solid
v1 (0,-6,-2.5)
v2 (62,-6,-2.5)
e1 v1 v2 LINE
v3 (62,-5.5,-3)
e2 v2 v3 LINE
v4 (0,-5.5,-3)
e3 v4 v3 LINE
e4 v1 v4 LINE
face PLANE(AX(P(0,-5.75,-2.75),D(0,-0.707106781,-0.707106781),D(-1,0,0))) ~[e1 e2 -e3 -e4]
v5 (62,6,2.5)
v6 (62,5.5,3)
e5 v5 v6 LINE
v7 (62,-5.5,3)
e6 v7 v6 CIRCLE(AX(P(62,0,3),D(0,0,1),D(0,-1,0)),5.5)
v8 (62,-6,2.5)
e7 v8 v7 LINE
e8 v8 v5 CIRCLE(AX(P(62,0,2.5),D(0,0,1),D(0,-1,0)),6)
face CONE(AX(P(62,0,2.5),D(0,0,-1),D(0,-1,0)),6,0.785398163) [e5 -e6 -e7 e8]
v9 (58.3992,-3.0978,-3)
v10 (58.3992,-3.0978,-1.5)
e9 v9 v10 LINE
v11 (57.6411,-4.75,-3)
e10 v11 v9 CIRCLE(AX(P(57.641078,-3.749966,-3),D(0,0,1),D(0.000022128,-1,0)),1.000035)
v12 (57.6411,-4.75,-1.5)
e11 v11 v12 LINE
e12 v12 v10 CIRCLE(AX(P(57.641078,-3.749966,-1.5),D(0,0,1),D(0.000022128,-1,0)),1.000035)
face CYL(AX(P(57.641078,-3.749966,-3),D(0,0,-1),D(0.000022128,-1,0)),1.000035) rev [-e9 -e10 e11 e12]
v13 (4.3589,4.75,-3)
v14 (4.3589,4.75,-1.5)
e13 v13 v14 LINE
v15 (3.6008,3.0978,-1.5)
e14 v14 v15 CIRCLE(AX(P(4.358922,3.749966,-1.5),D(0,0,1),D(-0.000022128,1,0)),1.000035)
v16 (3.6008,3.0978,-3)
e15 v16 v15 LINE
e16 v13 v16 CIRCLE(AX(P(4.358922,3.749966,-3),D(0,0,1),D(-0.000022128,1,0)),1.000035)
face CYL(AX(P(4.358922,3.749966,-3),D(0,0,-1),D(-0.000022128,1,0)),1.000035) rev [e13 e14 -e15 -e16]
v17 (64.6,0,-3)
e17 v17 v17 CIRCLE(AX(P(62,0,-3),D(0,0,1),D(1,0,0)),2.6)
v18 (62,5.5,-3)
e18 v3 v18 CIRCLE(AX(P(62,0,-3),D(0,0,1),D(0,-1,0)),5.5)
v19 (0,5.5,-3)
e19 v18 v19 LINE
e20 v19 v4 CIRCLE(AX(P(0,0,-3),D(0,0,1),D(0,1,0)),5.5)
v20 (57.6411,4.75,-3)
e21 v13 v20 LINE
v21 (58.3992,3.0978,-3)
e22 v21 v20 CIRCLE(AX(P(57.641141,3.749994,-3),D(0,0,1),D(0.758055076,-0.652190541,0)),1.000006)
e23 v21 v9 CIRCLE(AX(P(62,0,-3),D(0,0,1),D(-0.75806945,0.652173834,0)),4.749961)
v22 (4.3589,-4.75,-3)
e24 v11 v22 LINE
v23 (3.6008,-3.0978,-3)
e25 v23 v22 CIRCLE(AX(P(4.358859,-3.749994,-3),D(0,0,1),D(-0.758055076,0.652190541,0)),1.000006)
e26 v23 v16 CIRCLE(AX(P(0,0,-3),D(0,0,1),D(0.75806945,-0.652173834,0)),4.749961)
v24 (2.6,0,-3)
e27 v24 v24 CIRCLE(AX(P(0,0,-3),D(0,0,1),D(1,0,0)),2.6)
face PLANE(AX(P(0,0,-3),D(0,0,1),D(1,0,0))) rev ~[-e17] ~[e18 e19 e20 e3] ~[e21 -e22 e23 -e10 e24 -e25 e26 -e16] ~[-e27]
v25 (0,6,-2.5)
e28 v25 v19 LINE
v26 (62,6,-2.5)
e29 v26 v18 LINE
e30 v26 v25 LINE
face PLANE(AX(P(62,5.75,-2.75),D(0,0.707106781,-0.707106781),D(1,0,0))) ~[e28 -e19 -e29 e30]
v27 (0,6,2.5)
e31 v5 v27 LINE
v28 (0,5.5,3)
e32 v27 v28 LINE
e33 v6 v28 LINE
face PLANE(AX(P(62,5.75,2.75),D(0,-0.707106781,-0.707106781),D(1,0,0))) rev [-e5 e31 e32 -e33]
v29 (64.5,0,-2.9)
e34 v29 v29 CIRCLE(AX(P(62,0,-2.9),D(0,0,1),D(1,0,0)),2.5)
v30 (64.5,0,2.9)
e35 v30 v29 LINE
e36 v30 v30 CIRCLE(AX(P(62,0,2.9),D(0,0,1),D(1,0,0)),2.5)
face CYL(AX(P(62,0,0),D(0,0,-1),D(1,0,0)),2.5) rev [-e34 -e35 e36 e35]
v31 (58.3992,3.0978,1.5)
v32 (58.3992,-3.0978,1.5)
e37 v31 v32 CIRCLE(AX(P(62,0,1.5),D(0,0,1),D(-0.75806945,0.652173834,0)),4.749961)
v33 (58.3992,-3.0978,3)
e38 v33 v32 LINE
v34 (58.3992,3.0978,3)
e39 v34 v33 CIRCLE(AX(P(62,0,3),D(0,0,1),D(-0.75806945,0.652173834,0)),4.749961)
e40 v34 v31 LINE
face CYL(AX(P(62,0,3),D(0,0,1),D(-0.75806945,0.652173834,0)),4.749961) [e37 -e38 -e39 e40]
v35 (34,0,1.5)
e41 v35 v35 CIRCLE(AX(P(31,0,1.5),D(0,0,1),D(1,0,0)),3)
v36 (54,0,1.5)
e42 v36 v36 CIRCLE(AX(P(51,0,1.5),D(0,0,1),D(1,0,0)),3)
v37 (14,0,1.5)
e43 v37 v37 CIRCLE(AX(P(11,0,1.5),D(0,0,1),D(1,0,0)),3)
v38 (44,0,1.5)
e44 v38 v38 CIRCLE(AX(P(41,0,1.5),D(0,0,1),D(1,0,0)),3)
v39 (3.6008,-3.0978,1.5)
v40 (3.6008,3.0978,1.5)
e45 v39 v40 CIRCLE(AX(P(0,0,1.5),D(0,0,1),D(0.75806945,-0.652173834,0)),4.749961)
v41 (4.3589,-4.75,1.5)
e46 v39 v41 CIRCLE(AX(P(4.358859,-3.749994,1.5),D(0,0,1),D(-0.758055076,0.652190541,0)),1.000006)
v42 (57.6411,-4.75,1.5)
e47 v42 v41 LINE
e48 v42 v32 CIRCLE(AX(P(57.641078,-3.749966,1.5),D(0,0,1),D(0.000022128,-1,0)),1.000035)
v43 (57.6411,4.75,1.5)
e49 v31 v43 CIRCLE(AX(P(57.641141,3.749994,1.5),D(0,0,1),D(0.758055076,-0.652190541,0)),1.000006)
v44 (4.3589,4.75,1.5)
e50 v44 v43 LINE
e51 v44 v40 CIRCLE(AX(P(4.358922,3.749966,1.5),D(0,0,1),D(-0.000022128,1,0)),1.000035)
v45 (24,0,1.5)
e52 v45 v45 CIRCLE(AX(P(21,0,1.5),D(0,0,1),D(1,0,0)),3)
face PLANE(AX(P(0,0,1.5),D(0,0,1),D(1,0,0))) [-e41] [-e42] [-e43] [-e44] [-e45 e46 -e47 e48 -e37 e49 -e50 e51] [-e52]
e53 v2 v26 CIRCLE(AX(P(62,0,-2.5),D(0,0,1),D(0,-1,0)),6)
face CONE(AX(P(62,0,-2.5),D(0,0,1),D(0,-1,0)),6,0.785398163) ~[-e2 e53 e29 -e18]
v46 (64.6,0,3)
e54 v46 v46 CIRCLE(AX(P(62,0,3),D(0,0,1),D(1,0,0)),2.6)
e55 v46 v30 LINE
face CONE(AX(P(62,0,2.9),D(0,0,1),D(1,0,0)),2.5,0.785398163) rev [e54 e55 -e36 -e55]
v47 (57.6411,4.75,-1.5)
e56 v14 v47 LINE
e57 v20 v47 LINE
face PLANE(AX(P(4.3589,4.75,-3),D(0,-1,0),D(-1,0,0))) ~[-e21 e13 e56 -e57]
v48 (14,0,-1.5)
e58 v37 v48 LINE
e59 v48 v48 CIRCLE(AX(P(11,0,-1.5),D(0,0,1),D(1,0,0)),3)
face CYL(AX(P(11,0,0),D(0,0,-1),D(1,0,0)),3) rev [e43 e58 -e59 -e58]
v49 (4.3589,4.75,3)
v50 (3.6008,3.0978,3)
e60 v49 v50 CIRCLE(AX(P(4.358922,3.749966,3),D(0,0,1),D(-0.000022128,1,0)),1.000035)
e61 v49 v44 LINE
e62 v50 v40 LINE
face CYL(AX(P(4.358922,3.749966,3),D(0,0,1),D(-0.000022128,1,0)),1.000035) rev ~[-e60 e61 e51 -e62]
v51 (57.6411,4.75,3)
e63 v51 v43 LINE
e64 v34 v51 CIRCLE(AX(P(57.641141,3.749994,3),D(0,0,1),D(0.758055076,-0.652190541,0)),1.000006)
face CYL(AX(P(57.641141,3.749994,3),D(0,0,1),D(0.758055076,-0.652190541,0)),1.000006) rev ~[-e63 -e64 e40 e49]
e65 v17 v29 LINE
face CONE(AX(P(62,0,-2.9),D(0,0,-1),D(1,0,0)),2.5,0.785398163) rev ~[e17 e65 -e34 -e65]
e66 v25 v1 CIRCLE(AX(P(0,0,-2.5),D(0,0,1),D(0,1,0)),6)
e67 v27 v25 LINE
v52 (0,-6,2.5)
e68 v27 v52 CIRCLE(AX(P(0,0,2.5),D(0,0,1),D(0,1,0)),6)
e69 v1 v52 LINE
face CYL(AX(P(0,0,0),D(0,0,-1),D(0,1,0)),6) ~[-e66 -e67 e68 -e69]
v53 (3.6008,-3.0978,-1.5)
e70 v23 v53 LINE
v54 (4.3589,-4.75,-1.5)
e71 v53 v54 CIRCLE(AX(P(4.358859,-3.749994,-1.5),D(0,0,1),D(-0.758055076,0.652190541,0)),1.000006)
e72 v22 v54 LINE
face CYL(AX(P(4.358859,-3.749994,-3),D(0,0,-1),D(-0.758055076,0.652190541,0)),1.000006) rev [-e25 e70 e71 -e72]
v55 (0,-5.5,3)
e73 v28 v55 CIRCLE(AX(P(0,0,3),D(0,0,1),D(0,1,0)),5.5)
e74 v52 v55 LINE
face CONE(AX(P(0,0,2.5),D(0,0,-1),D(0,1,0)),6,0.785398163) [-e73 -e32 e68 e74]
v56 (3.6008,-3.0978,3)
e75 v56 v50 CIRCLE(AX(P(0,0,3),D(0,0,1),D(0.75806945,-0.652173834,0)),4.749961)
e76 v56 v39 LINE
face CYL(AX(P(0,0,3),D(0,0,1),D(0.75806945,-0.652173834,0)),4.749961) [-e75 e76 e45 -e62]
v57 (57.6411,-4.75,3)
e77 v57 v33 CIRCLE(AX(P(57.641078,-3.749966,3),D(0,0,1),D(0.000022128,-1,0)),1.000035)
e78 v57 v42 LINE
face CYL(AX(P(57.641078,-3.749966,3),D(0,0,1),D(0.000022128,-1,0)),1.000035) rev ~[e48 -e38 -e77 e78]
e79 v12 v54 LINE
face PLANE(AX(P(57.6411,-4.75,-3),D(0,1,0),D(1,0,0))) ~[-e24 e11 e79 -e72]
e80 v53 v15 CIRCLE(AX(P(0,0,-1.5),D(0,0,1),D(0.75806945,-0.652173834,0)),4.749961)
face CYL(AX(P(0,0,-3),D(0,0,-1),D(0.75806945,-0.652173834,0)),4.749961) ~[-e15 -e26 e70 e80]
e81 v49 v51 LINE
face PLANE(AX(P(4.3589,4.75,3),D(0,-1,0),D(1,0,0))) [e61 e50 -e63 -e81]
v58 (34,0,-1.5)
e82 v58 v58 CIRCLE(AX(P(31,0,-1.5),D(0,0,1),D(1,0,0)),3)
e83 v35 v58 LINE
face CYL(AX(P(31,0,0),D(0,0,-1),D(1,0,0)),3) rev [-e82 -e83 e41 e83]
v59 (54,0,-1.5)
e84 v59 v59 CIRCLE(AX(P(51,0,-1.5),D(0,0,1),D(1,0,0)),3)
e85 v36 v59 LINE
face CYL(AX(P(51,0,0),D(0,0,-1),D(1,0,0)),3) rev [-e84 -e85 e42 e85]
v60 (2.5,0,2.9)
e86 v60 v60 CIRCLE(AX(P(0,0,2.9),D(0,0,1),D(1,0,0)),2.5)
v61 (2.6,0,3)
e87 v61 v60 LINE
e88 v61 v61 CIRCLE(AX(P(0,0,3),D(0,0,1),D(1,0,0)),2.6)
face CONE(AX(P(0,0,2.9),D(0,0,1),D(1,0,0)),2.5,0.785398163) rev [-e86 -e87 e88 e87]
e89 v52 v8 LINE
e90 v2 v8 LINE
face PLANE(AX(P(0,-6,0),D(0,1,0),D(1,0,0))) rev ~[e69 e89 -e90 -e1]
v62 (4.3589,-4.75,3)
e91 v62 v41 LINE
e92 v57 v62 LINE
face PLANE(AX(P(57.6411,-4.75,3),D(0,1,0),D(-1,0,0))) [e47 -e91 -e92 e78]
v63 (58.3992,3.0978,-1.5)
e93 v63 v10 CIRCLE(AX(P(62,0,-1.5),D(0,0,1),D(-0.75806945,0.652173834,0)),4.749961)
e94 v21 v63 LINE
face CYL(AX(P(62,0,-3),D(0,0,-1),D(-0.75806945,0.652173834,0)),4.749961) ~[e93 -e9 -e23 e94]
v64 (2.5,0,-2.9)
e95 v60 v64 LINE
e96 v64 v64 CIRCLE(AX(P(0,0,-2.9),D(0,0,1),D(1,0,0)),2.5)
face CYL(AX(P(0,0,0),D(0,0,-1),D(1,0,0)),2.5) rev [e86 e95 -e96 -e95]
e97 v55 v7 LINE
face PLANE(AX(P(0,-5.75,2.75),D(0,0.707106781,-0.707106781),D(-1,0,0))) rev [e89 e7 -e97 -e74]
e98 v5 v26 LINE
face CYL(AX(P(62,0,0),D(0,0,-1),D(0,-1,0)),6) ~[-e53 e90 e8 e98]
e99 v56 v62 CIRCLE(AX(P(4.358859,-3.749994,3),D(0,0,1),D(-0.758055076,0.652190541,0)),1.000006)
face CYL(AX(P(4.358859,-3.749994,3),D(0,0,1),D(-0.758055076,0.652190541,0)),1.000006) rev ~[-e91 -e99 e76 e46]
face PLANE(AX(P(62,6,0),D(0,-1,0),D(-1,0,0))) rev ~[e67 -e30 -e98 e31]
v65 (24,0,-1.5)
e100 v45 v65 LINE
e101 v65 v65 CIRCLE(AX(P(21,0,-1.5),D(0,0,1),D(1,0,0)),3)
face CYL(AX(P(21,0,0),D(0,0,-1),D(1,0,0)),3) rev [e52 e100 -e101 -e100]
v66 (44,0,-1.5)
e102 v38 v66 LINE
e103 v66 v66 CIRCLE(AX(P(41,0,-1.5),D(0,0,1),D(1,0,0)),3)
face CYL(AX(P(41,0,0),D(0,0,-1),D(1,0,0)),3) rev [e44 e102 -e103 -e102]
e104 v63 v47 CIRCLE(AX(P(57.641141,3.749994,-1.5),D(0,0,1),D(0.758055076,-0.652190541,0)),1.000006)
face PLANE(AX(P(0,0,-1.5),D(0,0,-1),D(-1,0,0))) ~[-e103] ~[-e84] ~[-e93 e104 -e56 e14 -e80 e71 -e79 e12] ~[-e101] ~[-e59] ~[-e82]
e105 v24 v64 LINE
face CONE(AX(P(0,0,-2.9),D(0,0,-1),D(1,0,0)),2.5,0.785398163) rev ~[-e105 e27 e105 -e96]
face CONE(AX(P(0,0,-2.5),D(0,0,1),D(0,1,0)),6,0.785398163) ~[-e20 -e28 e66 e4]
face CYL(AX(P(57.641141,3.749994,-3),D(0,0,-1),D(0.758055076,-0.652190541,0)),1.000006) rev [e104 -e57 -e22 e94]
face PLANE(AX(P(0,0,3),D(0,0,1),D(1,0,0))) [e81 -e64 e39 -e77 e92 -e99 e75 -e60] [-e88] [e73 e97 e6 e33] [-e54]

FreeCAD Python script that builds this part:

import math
import FreeCAD as App
import Part
import Sketcher
from FreeCAD import Vector


def edges_at(feature, points):
    """Names of the edges that pass closest to the given points."""
    edges = feature.Shape.Edges
    near = lambda p: min(range(len(edges)), key=lambda i: edges[i].distToShape(Part.Vertex(*p))[0])
    return sorted({f"Edge{near(p) + 1}" for p in points})

doc = App.newDocument("Part")
body = doc.addObject("PartDesign::Body", "Body")

# Sketch on XY plane
sketch1 = body.newObject("Sketcher::SketchObject", "Sketch")
sketch1.AttachmentSupport = (doc.getObject("XY_Plane"), [""])
sketch1.MapMode = "FlatFace"
sketch1.addGeometry(Part.ArcOfCircle(Part.Circle(Vector(0, 0, 0), Vector(0, 0, 1), 6), math.radians(90), math.radians(270)), False)
sketch1.addGeometry(Part.LineSegment(Vector(0, -6, 0), Vector(62, -6, 0)), False)
sketch1.addGeometry(Part.ArcOfCircle(Part.Circle(Vector(62, 0, 0), Vector(0, 0, 1), 6), math.radians(-90), math.radians(90)), False)
sketch1.addGeometry(Part.LineSegment(Vector(62, 6, 0), Vector(0, 6, 0)), False)
sketch1.addGeometry(Part.Circle(Vector(0, 0, 0), Vector(0, 0, 1), 2.5), False)
sketch1.addGeometry(Part.Circle(Vector(11, 0, 0), Vector(0, 0, 1), 3), False)
sketch1.addGeometry(Part.Circle(Vector(21, 0, 0), Vector(0, 0, 1), 3), False)
sketch1.addGeometry(Part.Circle(Vector(31, 0, 0), Vector(0, 0, 1), 3), False)
sketch1.addGeometry(Part.Circle(Vector(41, 0, 0), Vector(0, 0, 1), 3), False)
sketch1.addGeometry(Part.Circle(Vector(51, 0, 0), Vector(0, 0, 1), 3), False)
sketch1.addGeometry(Part.Circle(Vector(62, 0, 0), Vector(0, 0, 1), 2.5), False)
sketch1.addConstraint(Sketcher.Constraint("Tangent", 0, 2, 1, 1))
sketch1.addConstraint(Sketcher.Constraint("Tangent", 1, 2, 2, 1))
sketch1.addConstraint(Sketcher.Constraint("Tangent", 2, 2, 3, 1))
sketch1.addConstraint(Sketcher.Constraint("Tangent", 3, 2, 0, 1))
sketch1.addConstraint(Sketcher.Constraint("Horizontal", 1))
sketch1.addConstraint(Sketcher.Constraint("Horizontal", 3))
sketch1.addConstraint(Sketcher.Constraint("Coincident", 0, 3, -1, 1))
sketch1.addConstraint(Sketcher.Constraint("Coincident", 4, 3, -1, 1))
sketch1.addConstraint(Sketcher.Constraint("Coincident", 10, 3, 2, 3))
sketch1.addConstraint(Sketcher.Constraint("Equal", 5, 6))
sketch1.addConstraint(Sketcher.Constraint("Equal", 6, 7))
sketch1.addConstraint(Sketcher.Constraint("Equal", 7, 8))
sketch1.addConstraint(Sketcher.Constraint("Equal", 8, 9))
sketch1.addConstraint(Sketcher.Constraint("Equal", 4, 10))
sketch1.addConstraint(Sketcher.Constraint("PointOnObject", 5, 3, -1))
sketch1.addConstraint(Sketcher.Constraint("PointOnObject", 6, 3, -1))
sketch1.addConstraint(Sketcher.Constraint("PointOnObject", 7, 3, -1))
sketch1.addConstraint(Sketcher.Constraint("PointOnObject", 8, 3, -1))
sketch1.addConstraint(Sketcher.Constraint("PointOnObject", 9, 3, -1))
sketch1.addConstraint(Sketcher.Constraint("Diameter", 4, 5.0))
sketch1.addConstraint(Sketcher.Constraint("Diameter", 5, 6.0))
sketch1.addConstraint(Sketcher.Constraint("Radius", 0, 6.0))
sketch1.addConstraint(Sketcher.Constraint("DistanceX", 1, 1, 1, 2, 62.0))
sketch1.addConstraint(Sketcher.Constraint("DistanceX", -1, 1, 5, 3, 11.0))
sketch1.addConstraint(Sketcher.Constraint("DistanceX", 5, 3, 6, 3, 10.0))
sketch1.addConstraint(Sketcher.Constraint("DistanceX", 6, 3, 7, 3, 10.0))
sketch1.addConstraint(Sketcher.Constraint("DistanceX", 7, 3, 8, 3, 10.0))
sketch1.addConstraint(Sketcher.Constraint("DistanceX", 8, 3, 9, 3, 10.0))
pad1 = body.newObject("PartDesign::Pad", "Pad")
pad1.Profile = sketch1
pad1.Length = 6
pad1.Midplane = True

# Sketch on XY plane
sketch2 = body.newObject("Sketcher::SketchObject", "Sketch001")
sketch2.AttachmentSupport = (doc.getObject("XY_Plane"), [""])
sketch2.MapMode = "FlatFace"
sketch2.AttachmentOffset = App.Placement(Vector(0, 0, 3), App.Rotation())
sketch2.addGeometry(Part.LineSegment(Vector(57.6, 4.8, 0), Vector(4.4, 4.8, 0)), False)
sketch2.addGeometry(Part.ArcOfCircle(Part.Circle(Vector(4.4, 3.8, 0), Vector(0, 0, 1), 1), math.radians(90), math.radians(221)), False)
sketch2.addGeometry(Part.ArcOfCircle(Part.Circle(Vector(0, 0, 0), Vector(0, 0, 1), 4.7), math.radians(-41), math.radians(41)), False)
sketch2.addGeometry(Part.ArcOfCircle(Part.Circle(Vector(4.4, -3.8, 0), Vector(0, 0, 1), 1), math.radians(139), math.radians(270)), False)
sketch2.addGeometry(Part.LineSegment(Vector(4.4, -4.8, 0), Vector(57.6, -4.8, 0)), False)
sketch2.addGeometry(Part.ArcOfCircle(Part.Circle(Vector(57.6, -3.8, 0), Vector(0, 0, 1), 1), math.radians(-90), math.radians(41)), False)
sketch2.addGeometry(Part.ArcOfCircle(Part.Circle(Vector(62, 0, 0), Vector(0, 0, 1), 4.7), math.radians(139), math.radians(221)), False)
sketch2.addGeometry(Part.ArcOfCircle(Part.Circle(Vector(57.6, 3.8, 0), Vector(0, 0, 1), 1), math.radians(-41), math.radians(90)), False)
sketch2.addGeometry(Part.Circle(Vector(11, 0, 0), Vector(0, 0, 1), 3), False)
sketch2.addGeometry(Part.Circle(Vector(21, 0, 0), Vector(0, 0, 1), 3), False)
sketch2.addGeometry(Part.Circle(Vector(31, 0, 0), Vector(0, 0, 1), 3), False)
sketch2.addGeometry(Part.Circle(Vector(41, 0, 0), Vector(0, 0, 1), 3), False)
sketch2.addGeometry(Part.Circle(Vector(51, 0, 0), Vector(0, 0, 1), 3), False)
sketch2.addConstraint(Sketcher.Constraint("Tangent", 0, 2, 1, 1))
sketch2.addConstraint(Sketcher.Constraint("Tangent", 1, 2, 2, 2))
sketch2.addConstraint(Sketcher.Constraint("Tangent", 2, 1, 3, 1))
sketch2.addConstraint(Sketcher.Constraint("Tangent", 3, 2, 4, 1))
sketch2.addConstraint(Sketcher.Constraint("Tangent", 4, 2, 5, 1))
sketch2.addConstraint(Sketcher.Constraint("Tangent", 5, 2, 6, 2))
sketch2.addConstraint(Sketcher.Constraint("Tangent", 6, 1, 7, 1))
sketch2.addConstraint(Sketcher.Constraint("Tangent", 7, 2, 0, 1))
sketch2.addConstraint(Sketcher.Constraint("Horizontal", 0))
sketch2.addConstraint(Sketcher.Constraint("Horizontal", 4))
sketch2.addConstraint(Sketcher.Constraint("Coincident", 2, 3, -1, 1))
sketch2.addConstraint(Sketcher.Constraint("Equal", 1, 3))
sketch2.addConstraint(Sketcher.Constraint("Equal", 3, 5))
sketch2.addConstraint(Sketcher.Constraint("Equal", 2, 6))
sketch2.addConstraint(Sketcher.Constraint("Equal", 5, 7))
sketch2.addConstraint(Sketcher.Constraint("Equal", 8, 9))
sketch2.addConstraint(Sketcher.Constraint("Equal", 9, 10))
sketch2.addConstraint(Sketcher.Constraint("Equal", 10, 11))
sketch2.addConstraint(Sketcher.Constraint("Equal", 11, 12))
sketch2.addConstraint(Sketcher.Constraint("Symmetric", 5, 3, 7, 3, -1))
sketch2.addConstraint(Sketcher.Constraint("PointOnObject", 8, 3, -1))
sketch2.addConstraint(Sketcher.Constraint("PointOnObject", 9, 3, -1))
sketch2.addConstraint(Sketcher.Constraint("PointOnObject", 10, 3, -1))
sketch2.addConstraint(Sketcher.Constraint("PointOnObject", 11, 3, -1))
sketch2.addConstraint(Sketcher.Constraint("PointOnObject", 12, 3, -1))
sketch2.addConstraint(Sketcher.Constraint("Radius", 1, 1.0))
sketch2.addConstraint(Sketcher.Constraint("Radius", 2, 4.75))
sketch2.addConstraint(Sketcher.Constraint("Diameter", 8, 6.0))
sketch2.addConstraint(Sketcher.Constraint("DistanceY", -1, 1, 0, 2, 4.75))
sketch2.addConstraint(Sketcher.Constraint("DistanceX", -1, 1, 6, 3, 62.0))
sketch2.addConstraint(Sketcher.Constraint("DistanceX", -1, 1, 8, 3, 11.0))
sketch2.addConstraint(Sketcher.Constraint("DistanceX", -1, 1, 9, 3, 21.0))
sketch2.addConstraint(Sketcher.Constraint("DistanceX", -1, 1, 10, 3, 31.0))
sketch2.addConstraint(Sketcher.Constraint("DistanceX", -1, 1, 11, 3, 41.0))
sketch2.addConstraint(Sketcher.Constraint("DistanceX", -1, 1, 12, 3, 51.0))
pocket1 = body.newObject("PartDesign::Pocket", "Pocket")
pocket1.Profile = sketch2
pocket1.Length = 1.5
doc.recompute()

mirrored = body.newObject("PartDesign::Mirrored", "Mirrored")
mirrored.Originals = [pocket1]
mirrored.MirrorPlane = (doc.getObject("XY_Plane"), [""])
body.Tip = mirrored
doc.recompute()

chamfer = body.newObject("PartDesign::Chamfer", "Chamfer")
chamfer.Base = (mirrored, edges_at(mirrored, [
    (31, 6, 3),
    (-6, 0, 3),
    (31, -6, 3),
    (68, 0, 3),
    (31, 6, -3),
    (68, 0, -3),
    (31, -6, -3),
    (-6, 0, -3),
]))
chamfer.Size = 0.5
doc.recompute()

chamfer2 = body.newObject("PartDesign::Chamfer", "Chamfer001")
chamfer2.Base = (chamfer, edges_at(chamfer, [
    (-2.5, 0, 3),
    (59.5, 0, 3),
    (59.5, 0, -3),
    (-2.5, 0, -3),
]))
chamfer2.Size = 0.1

doc.recompute()
